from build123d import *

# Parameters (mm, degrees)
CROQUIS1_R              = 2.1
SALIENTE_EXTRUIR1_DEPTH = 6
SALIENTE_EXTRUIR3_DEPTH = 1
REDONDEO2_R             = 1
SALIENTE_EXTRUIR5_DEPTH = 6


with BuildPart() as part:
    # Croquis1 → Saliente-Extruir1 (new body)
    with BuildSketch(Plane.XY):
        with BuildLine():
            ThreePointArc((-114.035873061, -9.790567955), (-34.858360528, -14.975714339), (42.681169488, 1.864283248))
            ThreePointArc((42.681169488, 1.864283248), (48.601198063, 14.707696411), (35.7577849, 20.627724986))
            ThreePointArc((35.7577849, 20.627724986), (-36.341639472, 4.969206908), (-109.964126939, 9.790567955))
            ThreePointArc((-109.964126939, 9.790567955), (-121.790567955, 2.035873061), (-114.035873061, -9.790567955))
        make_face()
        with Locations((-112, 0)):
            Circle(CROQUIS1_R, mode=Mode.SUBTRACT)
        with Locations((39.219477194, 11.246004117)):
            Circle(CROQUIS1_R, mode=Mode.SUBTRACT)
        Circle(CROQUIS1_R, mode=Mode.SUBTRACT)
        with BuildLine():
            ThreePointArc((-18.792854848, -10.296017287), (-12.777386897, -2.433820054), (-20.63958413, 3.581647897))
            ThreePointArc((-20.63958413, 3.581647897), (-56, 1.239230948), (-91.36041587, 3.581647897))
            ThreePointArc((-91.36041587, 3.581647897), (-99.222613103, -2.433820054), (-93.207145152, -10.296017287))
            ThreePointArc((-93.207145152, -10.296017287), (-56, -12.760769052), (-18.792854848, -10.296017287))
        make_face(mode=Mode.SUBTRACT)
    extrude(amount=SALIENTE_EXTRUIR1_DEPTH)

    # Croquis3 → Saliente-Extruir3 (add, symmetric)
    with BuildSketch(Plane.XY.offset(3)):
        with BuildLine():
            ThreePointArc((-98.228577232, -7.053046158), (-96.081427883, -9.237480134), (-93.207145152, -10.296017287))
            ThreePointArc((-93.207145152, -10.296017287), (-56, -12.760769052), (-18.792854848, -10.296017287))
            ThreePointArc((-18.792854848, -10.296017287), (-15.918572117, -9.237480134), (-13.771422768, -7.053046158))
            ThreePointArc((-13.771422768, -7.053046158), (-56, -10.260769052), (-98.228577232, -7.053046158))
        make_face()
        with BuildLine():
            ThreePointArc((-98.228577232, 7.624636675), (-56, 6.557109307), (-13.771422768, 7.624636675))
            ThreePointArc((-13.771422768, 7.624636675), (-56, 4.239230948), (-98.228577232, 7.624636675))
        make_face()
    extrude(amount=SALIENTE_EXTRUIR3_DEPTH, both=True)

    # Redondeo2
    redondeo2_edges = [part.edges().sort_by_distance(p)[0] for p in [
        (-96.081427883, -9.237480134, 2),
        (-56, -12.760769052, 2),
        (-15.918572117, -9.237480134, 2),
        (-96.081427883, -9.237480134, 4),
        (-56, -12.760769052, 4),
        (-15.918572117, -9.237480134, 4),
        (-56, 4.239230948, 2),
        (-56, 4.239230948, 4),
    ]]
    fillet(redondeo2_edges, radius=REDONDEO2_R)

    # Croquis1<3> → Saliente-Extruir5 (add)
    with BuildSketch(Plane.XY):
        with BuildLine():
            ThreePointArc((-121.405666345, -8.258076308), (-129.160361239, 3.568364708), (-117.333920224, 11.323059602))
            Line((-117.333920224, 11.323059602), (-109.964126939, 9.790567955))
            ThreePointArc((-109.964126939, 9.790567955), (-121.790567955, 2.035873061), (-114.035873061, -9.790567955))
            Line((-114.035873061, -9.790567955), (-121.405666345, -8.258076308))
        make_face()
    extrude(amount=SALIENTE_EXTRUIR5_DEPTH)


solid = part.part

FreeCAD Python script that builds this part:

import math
import FreeCAD as App
import Part
import Sketcher

V = App.Vector
Q = App.Units.Quantity


def edges_at(feature, points):
    """Names of the edges that pass closest to the given points."""
    edges = feature.Shape.Edges
    near = lambda p: min(range(len(edges)), key=lambda i: edges[i].distToShape(Part.Vertex(*p))[0])
    return sorted({f"Edge{near(p) + 1}" for p in points})

doc = App.newDocument("Part")
body = doc.addObject("PartDesign::Body", "Body")

# Sketch on XY plane
sketch1 = body.newObject("Sketcher::SketchObject", "Sketch")
sketch1.AttachmentSupport = (doc.getObject("XY_Plane"), [""])
sketch1.MapMode = "FlatFace"
sketch1.addGeometry([
    Part.ArcOfCircle(Part.Circle(V(-56, 269.3, 0), V(0, 0, 1), 285.1), math.radians(-102), math.radians(-70)),  # 0
    Part.ArcOfCircle(Part.Circle(V(39.2, 11.2, 0), V(0, 0, 1), 10), math.radians(-70), math.radians(110)),  # 1
    Part.ArcOfCircle(Part.Circle(V(-56, 269.3, 0), V(0, 0, 1), 265.1), math.radians(-102), math.radians(-70)),  # 2
    Part.ArcOfCircle(Part.Circle(V(-112, 0, 0), V(0, 0, 1), 10), math.radians(78), math.radians(258)),  # 3
    Part.Circle(V(-112, 0, 0), V(0, 0, 1), 2.1),  # 4
    Part.ArcOfCircle(Part.Circle(V(-19.7, -3.4, 0), V(0, 0, 1), 7), math.radians(-82), math.radians(98)),  # 5
    Part.ArcOfCircle(Part.Circle(V(-56, 269.3, 0), V(0, 0, 1), 282.1), math.radians(-97.58), math.radians(-82.42)),  # 6
    Part.ArcOfCircle(Part.Circle(V(-92.3, -3.4, 0), V(0, 0, 1), 7), math.radians(82), math.radians(262)),  # 7
    Part.ArcOfCircle(Part.Circle(V(-56, 269.3, 0), V(0, 0, 1), 268.1), math.radians(-97.58), math.radians(-82.42)),  # 8
    Part.Circle(V(0, 0, 0), V(0, 0, 1), 2.1),  # 9
    Part.Circle(V(39.2, 11.2, 0), V(0, 0, 1), 2.1),  # 10
], False)
sketch1.addConstraint([
    Sketcher.Constraint("Tangent", 0, 2, 1, 1),
    Sketcher.Constraint("Tangent", 1, 2, 2, 2),
    Sketcher.Constraint("Tangent", 2, 1, 3, 1),
    Sketcher.Constraint("Tangent", 3, 2, 0, 1),
    Sketcher.Constraint("Tangent", 5, 1, 6, 2),
    Sketcher.Constraint("Tangent", 6, 1, 7, 2),
    Sketcher.Constraint("Tangent", 7, 1, 8, 1),
    Sketcher.Constraint("Tangent", 8, 2, 5, 2),
    Sketcher.Constraint("Coincident", 9, 3, -1, 1),
    Sketcher.Constraint("Coincident", 2, 3, 0, 3),
    Sketcher.Constraint("Coincident", 4, 3, 3, 3),
    Sketcher.Constraint("Coincident", 6, 3, 0, 3),
    Sketcher.Constraint("Coincident", 8, 3, 0, 3),
    Sketcher.Constraint("Coincident", 10, 3, 1, 3),
    Sketcher.Constraint("Equal", 4, 9),
    Sketcher.Constraint("Equal", 9, 10),
    Sketcher.Constraint("PointOnObject", 3, 3, -1),
    Sketcher.Constraint("Horizontal", 5, 3, 7, 3),
    Sketcher.Constraint("Radius", 1, Q("10 mm")),
    Sketcher.Constraint("Radius", 5, Q("7 mm")),
    Sketcher.Constraint("Diameter", 4, Q("4.2 mm")),
    Sketcher.Constraint("DistanceX", 0, 3, -1, 1, Q("56 mm")),
    Sketcher.Constraint("DistanceX", 3, 3, -1, 1, Q("112 mm")),
    Sketcher.Constraint("Radius", 0, Q("285.066266 mm")),
    Sketcher.Constraint("Radius", 6, Q("282.066266 mm")),
    Sketcher.Constraint("DistanceY", 5, 1, 0, 2, Q("12.160301 mm")),
    Sketcher.Constraint("DistanceX", 5, 3, -1, 1, Q("19.716219 mm")),
])
pad1 = body.newObject("PartDesign::Pad", "Pad")
pad1.Profile = sketch1
pad1.Length = 6

# Sketch on XY plane
sketch2 = body.newObject("Sketcher::SketchObject", "Sketch001")
sketch2.AttachmentSupport = (doc.getObject("XY_Plane"), [""])
sketch2.MapMode = "FlatFace"
sketch2.AttachmentOffset = App.Placement(V(0, 0, 3), App.Rotation())
sketch2.addGeometry([
    Part.ArcOfCircle(Part.Circle(V(-92, -3, 0), V(0, 0, 1), 7), math.radians(-148), math.radians(-98)),  # 0
    Part.ArcOfCircle(Part.Circle(V(-56, 269, 0), V(0, 0, 1), 282), math.radians(-97.58), math.radians(-82.42)),  # 1
    Part.ArcOfCircle(Part.Circle(V(-20, -3, 0), V(0, 0, 1), 7), math.radians(-82), math.radians(-32)),  # 2
    Part.ArcOfCircle(Part.Circle(V(-56, 269, 0), V(0, 0, 1), 280), math.radians(-98.69), math.radians(-81.31)),  # 3
    Part.ArcOfCircle(Part.Circle(V(-56, 842, 0), V(0, 0, 1), 836), math.radians(-92.9), math.radians(-87.1)),  # 4
    Part.ArcOfCircle(Part.Circle(V(-56, 269, 0), V(0, 0, 1), 265), math.radians(-99.17), math.radians(-80.83)),  # 5
], False)
sketch2.addConstraint([
    Sketcher.Constraint("Tangent", 0, 2, 1, 1),
    Sketcher.Constraint("Tangent", 1, 2, 2, 1),
    Sketcher.Constraint("Coincident", 2, 2, 3, 2),
    Sketcher.Constraint("Coincident", 3, 1, 0, 1),
    Sketcher.Constraint("Coincident", 4, 1, 5, 1),
    Sketcher.Constraint("Coincident", 5, 2, 4, 2),
    Sketcher.Constraint("Coincident", 3, 3, 1, 3),
    Sketcher.Constraint("Coincident", 5, 3, 1, 3),
    Sketcher.Constraint("Equal", 0, 2),
    Sketcher.Constraint("Horizontal", 0, 3, 2, 3),
    Sketcher.Constraint("Horizontal", 4, 1, 5, 2),
    Sketcher.Constraint("Vertical", 3, 1, 4, 1),
    Sketcher.Constraint("Radius", 0, Q("7 mm")),
    Sketcher.Constraint("DistanceX", 1, 3, -1, 1, Q("56 mm")),
    Sketcher.Constraint("Radius", 1, Q("282.066266 mm")),
    Sketcher.Constraint("Radius", 3, Q("279.566266 mm")),
    Sketcher.Constraint("Radius", 4, Q("835.759533 mm")),
    Sketcher.Constraint("Radius", 5, Q("265.066266 mm")),
    Sketcher.Constraint("DistanceX", 0, 3, -1, 1, Q("92.283781 mm")),
    Sketcher.Constraint("DistanceY", 0, 3, -1, 1, Q("3.357185 mm")),
])
pad2 = body.newObject("PartDesign::Pad", "Pad001")
pad2.Profile = sketch2
pad2.Length = 2
pad2.Midplane = True
doc.recompute()

fillet = body.newObject("PartDesign::Fillet", "Fillet")
fillet.Base = (pad2, edges_at(pad2, [
    (-96.081, -9.237, 2),
    (-56, -12.761, 2),
    (-15.919, -9.237, 2),
    (-96.081, -9.237, 4),
    (-56, -12.761, 4),
    (-15.919, -9.237, 4),
    (-56, 4.239, 2),
    (-56, 4.239, 4),
]))
fillet.Radius = 1

# Sketch on XY plane
sketch3 = body.newObject("Sketcher::SketchObject", "Sketch002")
sketch3.AttachmentSupport = (doc.getObject("XY_Plane"), [""])
sketch3.MapMode = "FlatFace"
sketch3.addGeometry([
    Part.ArcOfCircle(Part.Circle(V(-119, 2, 0), V(0, 0, 1), 10), math.radians(78), math.radians(258)),
    Part.LineSegment(V(-121, -8, 0), V(-114, -10, 0)),
    Part.ArcOfCircle(Part.Circle(V(-112, 0, 0), V(0, 0, 1), 10), math.radians(78), math.radians(258)),
    Part.LineSegment(V(-110, 10, 0), V(-117, 11, 0)),
], False)
sketch3.addConstraint([
    Sketcher.Constraint("Tangent", 0, 2, 1, 1),
    Sketcher.Constraint("Tangent", 1, 2, 2, 2),
    Sketcher.Constraint("Tangent", 2, 1, 3, 1),
    Sketcher.Constraint("Tangent", 3, 2, 0, 1),
    Sketcher.Constraint("Equal", 0, 2),
    Sketcher.Constraint("PointOnObject", 2, 3, -1),
    Sketcher.Constraint("Radius", 0, Q("10 mm")),
    Sketcher.Constraint("DistanceX", 2, 3, -1, 1, Q("112 mm")),
    Sketcher.Constraint("DistanceY", -1, 1, 0, 3, Q("1.532492 mm")),
    Sketcher.Constraint("DistanceX", 3, 2, -1, 1, Q("117.33392 mm")),
])
pad3 = body.newObject("PartDesign::Pad", "Pad002")
pad3.Profile = sketch3
pad3.Length = 6

doc.recompute()
